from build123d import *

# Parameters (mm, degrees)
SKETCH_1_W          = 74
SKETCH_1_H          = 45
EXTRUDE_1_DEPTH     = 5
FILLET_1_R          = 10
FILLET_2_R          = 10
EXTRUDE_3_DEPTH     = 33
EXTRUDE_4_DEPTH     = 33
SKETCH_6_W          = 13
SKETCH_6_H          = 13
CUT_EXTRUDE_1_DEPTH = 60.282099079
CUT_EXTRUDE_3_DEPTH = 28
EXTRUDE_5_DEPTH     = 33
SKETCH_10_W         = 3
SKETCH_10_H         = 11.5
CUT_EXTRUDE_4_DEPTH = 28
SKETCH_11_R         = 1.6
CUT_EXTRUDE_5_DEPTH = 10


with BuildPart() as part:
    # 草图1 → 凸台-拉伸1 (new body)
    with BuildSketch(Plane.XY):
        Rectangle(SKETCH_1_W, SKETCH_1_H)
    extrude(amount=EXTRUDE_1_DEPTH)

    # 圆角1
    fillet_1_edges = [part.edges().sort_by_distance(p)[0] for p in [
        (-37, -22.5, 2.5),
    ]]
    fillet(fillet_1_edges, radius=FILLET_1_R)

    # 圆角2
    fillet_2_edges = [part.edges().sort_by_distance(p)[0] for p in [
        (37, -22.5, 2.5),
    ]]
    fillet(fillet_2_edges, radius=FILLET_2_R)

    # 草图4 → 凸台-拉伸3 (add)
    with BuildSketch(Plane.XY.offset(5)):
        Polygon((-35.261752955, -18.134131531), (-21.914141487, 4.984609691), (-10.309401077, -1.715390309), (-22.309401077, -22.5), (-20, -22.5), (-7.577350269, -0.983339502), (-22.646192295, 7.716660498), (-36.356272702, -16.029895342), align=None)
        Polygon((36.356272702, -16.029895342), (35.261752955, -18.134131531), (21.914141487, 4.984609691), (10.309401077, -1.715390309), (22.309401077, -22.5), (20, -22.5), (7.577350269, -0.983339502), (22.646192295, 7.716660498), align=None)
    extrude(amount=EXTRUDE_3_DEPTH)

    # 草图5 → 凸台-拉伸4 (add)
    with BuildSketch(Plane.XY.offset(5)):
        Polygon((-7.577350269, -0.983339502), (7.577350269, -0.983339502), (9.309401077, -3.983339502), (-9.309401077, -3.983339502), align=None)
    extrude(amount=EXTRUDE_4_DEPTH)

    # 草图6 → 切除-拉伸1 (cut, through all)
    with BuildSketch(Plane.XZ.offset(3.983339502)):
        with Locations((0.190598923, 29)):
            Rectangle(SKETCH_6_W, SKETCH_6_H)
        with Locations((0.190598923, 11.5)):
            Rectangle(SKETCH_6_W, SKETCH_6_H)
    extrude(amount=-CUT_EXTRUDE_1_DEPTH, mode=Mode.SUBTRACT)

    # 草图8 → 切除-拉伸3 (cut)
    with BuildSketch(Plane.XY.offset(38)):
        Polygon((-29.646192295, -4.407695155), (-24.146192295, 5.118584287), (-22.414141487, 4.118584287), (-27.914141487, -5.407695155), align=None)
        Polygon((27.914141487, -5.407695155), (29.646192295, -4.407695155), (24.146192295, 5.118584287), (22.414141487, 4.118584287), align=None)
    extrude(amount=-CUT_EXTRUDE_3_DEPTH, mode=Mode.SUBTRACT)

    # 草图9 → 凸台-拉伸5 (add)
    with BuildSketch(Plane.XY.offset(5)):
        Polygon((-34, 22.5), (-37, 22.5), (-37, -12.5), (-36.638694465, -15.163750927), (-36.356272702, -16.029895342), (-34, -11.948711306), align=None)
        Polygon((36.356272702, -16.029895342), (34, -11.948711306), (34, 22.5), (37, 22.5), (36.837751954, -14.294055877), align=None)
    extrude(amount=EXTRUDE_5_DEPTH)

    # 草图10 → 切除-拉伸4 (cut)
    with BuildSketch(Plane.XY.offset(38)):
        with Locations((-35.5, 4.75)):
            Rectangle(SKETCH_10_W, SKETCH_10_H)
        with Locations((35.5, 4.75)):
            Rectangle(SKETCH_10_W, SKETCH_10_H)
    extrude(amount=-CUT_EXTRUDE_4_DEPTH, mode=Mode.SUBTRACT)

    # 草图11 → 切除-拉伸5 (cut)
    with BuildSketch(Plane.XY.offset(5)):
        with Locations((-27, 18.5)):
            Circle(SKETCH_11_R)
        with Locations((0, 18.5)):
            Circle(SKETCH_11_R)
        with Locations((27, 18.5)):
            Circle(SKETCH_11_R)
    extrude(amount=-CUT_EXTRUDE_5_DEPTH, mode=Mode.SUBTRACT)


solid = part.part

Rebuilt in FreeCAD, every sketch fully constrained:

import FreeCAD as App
import Part
import Sketcher
Q = App.Units.Quantity


def edges_at(feature, points):
    """Names of the edges that pass closest to the given points."""
    edges = feature.Shape.Edges
    near = lambda p: min(range(len(edges)), key=lambda i: edges[i].distToShape(Part.Vertex(*p))[0])
    return sorted({f"Edge{near(p) + 1}" for p in points})

doc = App.newDocument("Part")
body = doc.addObject("PartDesign::Body", "Body")

# Sketch on XY plane
sketch1 = doc.addObject("Sketcher::SketchObject", "Sketch")
body.addObject(sketch1)
sketch1.AttachmentSupport = (doc.XY_Plane, [""])
sketch1.MapMode = "FlatFace"
sketch1.addGeometry(Part.LineSegment(App.Vector(-37, 22, 0), App.Vector(-37, -22, 0)), False)
sketch1.addGeometry(Part.LineSegment(App.Vector(-37, -22, 0), App.Vector(37, -22, 0)), False)
sketch1.addGeometry(Part.LineSegment(App.Vector(37, -22, 0), App.Vector(37, 22, 0)), False)
sketch1.addGeometry(Part.LineSegment(App.Vector(37, 22, 0), App.Vector(-37, 22, 0)), False)
sketch1.addConstraint(Sketcher.Constraint("Coincident", 0, 2, 1, 1))
sketch1.addConstraint(Sketcher.Constraint("Coincident", 1, 2, 2, 1))
sketch1.addConstraint(Sketcher.Constraint("Coincident", 2, 2, 3, 1))
sketch1.addConstraint(Sketcher.Constraint("Coincident", 3, 2, 0, 1))
sketch1.addConstraint(Sketcher.Constraint("Vertical", 0))
sketch1.addConstraint(Sketcher.Constraint("Horizontal", 1))
sketch1.addConstraint(Sketcher.Constraint("Vertical", 2))
sketch1.addConstraint(Sketcher.Constraint("Horizontal", 3))
sketch1.addConstraint(Sketcher.Constraint("Symmetric", 0, 2, 2, 2, -1, 1))
sketch1.addConstraint(Sketcher.Constraint("DistanceX", 1, 1, 1, 2, Q("74 mm")))
sketch1.addConstraint(Sketcher.Constraint("DistanceY", 0, 2, 0, 1, Q("45 mm")))
pad1 = doc.addObject("PartDesign::Pad", "Pad")
body.addObject(pad1)
pad1.Profile = sketch1
pad1.Length = 5
doc.recompute()

fillet = doc.addObject("PartDesign::Fillet", "Fillet")
body.addObject(fillet)
fillet.Base = (pad1, edges_at(pad1, [(-37, -22.5, 2.5)]))
fillet.Radius = 10
doc.recompute()

fillet2 = doc.addObject("PartDesign::Fillet", "Fillet001")
body.addObject(fillet2)
fillet2.Base = (fillet, edges_at(fillet, [(37, -22.5, 2.5)]))
fillet2.Radius = 10

# Sketch on XY plane
sketch2 = doc.addObject("Sketcher::SketchObject", "Sketch001")
body.addObject(sketch2)
sketch2.AttachmentSupport = (doc.XY_Plane, [""])
sketch2.MapMode = "FlatFace"
sketch2.AttachmentOffset = App.Placement(App.Vector(0, 0, 5), App.Rotation())
sketch2.addGeometry(Part.LineSegment(App.Vector(-35.3, -18.1, 0), App.Vector(-21.9, 5, 0)), False)
sketch2.addGeometry(Part.LineSegment(App.Vector(-21.9, 5, 0), App.Vector(-10.3, -1.7, 0)), False)
sketch2.addGeometry(Part.LineSegment(App.Vector(-10.3, -1.7, 0), App.Vector(-22.3, -22.5, 0)), False)
sketch2.addGeometry(Part.LineSegment(App.Vector(-22.3, -22.5, 0), App.Vector(-20, -22.5, 0)), False)
sketch2.addGeometry(Part.LineSegment(App.Vector(-20, -22.5, 0), App.Vector(-7.6, -1, 0)), False)
sketch2.addGeometry(Part.LineSegment(App.Vector(-7.6, -1, 0), App.Vector(-22.6, 7.7, 0)), False)
sketch2.addGeometry(Part.LineSegment(App.Vector(-22.6, 7.7, 0), App.Vector(-36.4, -16, 0)), False)
sketch2.addGeometry(Part.LineSegment(App.Vector(-36.4, -16, 0), App.Vector(-35.3, -18.1, 0)), False)
sketch2.addGeometry(Part.LineSegment(App.Vector(35.3, -18.1, 0), App.Vector(36.4, -16, 0)), False)
sketch2.addGeometry(Part.LineSegment(App.Vector(36.4, -16, 0), App.Vector(22.6, 7.7, 0)), False)
sketch2.addGeometry(Part.LineSegment(App.Vector(22.6, 7.7, 0), App.Vector(7.6, -1, 0)), False)
sketch2.addGeometry(Part.LineSegment(App.Vector(7.6, -1, 0), App.Vector(20, -22.5, 0)), False)
sketch2.addGeometry(Part.LineSegment(App.Vector(20, -22.5, 0), App.Vector(22.3, -22.5, 0)), False)
sketch2.addGeometry(Part.LineSegment(App.Vector(22.3, -22.5, 0), App.Vector(10.3, -1.7, 0)), False)
sketch2.addGeometry(Part.LineSegment(App.Vector(10.3, -1.7, 0), App.Vector(21.9, 5, 0)), False)
sketch2.addGeometry(Part.LineSegment(App.Vector(21.9, 5, 0), App.Vector(35.3, -18.1, 0)), False)
sketch2.addConstraint(Sketcher.Constraint("Coincident", 0, 2, 1, 1))
sketch2.addConstraint(Sketcher.Constraint("Coincident", 1, 2, 2, 1))
sketch2.addConstraint(Sketcher.Constraint("Coincident", 2, 2, 3, 1))
sketch2.addConstraint(Sketcher.Constraint("Coincident", 3, 2, 4, 1))
sketch2.addConstraint(Sketcher.Constraint("Coincident", 4, 2, 5, 1))
sketch2.addConstraint(Sketcher.Constraint("Coincident", 5, 2, 6, 1))
sketch2.addConstraint(Sketcher.Constraint("Coincident", 6, 2, 7, 1))
sketch2.addConstraint(Sketcher.Constraint("Coincident", 7, 2, 0, 1))
sketch2.addConstraint(Sketcher.Constraint("Coincident", 8, 2, 9, 1))
sketch2.addConstraint(Sketcher.Constraint("Coincident", 9, 2, 10, 1))
sketch2.addConstraint(Sketcher.Constraint("Coincident", 10, 2, 11, 1))
sketch2.addConstraint(Sketcher.Constraint("Coincident", 11, 2, 12, 1))
sketch2.addConstraint(Sketcher.Constraint("Coincident", 12, 2, 13, 1))
sketch2.addConstraint(Sketcher.Constraint("Coincident", 13, 2, 14, 1))
sketch2.addConstraint(Sketcher.Constraint("Coincident", 14, 2, 15, 1))
sketch2.addConstraint(Sketcher.Constraint("Coincident", 15, 2, 8, 1))
sketch2.addConstraint(Sketcher.Constraint("Horizontal", 3))
sketch2.addConstraint(Sketcher.Constraint("Horizontal", 12))
sketch2.addConstraint(Sketcher.Constraint("Symmetric", 6, 2, 8, 2, -2))
sketch2.addConstraint(Sketcher.Constraint("Symmetric", 5, 2, 9, 2, -2))
sketch2.addConstraint(Sketcher.Constraint("Symmetric", 4, 2, 10, 2, -2))
sketch2.addConstraint(Sketcher.Constraint("Symmetric", 3, 2, 11, 2, -2))
sketch2.addConstraint(Sketcher.Constraint("Symmetric", 1, 2, 13, 2, -2))
sketch2.addConstraint(Sketcher.Constraint("Symmetric", 0, 2, 14, 2, -2))
sketch2.addConstraint(Sketcher.Constraint("Symmetric", 7, 2, 15, 2, -2))
sketch2.addConstraint(Sketcher.Constraint("Perpendicular", 0, 1))
sketch2.addConstraint(Sketcher.Constraint("Perpendicular", 1, 2))
sketch2.addConstraint(Sketcher.Constraint("Parallel", 2, 4))
sketch2.addConstraint(Sketcher.Constraint("Perpendicular", 4, 5))
sketch2.addConstraint(Sketcher.Constraint("Perpendicular", 5, 6))
sketch2.addConstraint(Sketcher.Constraint("Parallel", 11, 13))
sketch2.addConstraint(Sketcher.Constraint("Angle", 0, Q("60 deg")))
sketch2.addConstraint(Sketcher.Constraint("Distance", 2, Q("24 mm")))
sketch2.addConstraint(Sketcher.Constraint("DistanceX", 3, 2, -1, 1, Q("20 mm")))
sketch2.addConstraint(Sketcher.Constraint("Distance", 1, Q("13.4 mm")))
sketch2.addConstraint(Sketcher.Constraint("Distance", 5, Q("17.4 mm")))
sketch2.addConstraint(Sketcher.Constraint("DistanceY", 2, 2, -1, 1, Q("22.5 mm")))
sketch2.addConstraint(Sketcher.Constraint("DistanceX", 3, 1, 3, 2, Q("2.309401 mm")))
sketch2.addConstraint(Sketcher.Constraint("Distance", 4, Q("24.845299 mm")))
sketch2.addConstraint(Sketcher.Constraint("Distance", 6, Q("27.420161 mm")))
sketch2.addConstraint(Sketcher.Constraint("DistanceY", 7, 2, -1, 1, Q("18.134132 mm")))
pad2 = doc.addObject("PartDesign::Pad", "Pad001")
body.addObject(pad2)
pad2.Profile = sketch2
pad2.Length = 33

# Sketch on XY plane
sketch3 = doc.addObject("Sketcher::SketchObject", "Sketch002")
body.addObject(sketch3)
sketch3.AttachmentSupport = (doc.XY_Plane, [""])
sketch3.MapMode = "FlatFace"
sketch3.AttachmentOffset = App.Placement(App.Vector(0, 0, 5), App.Rotation())
sketch3.addGeometry(Part.LineSegment(App.Vector(7.6, -1, 0), App.Vector(-7.6, -1, 0)), False)
sketch3.addGeometry(Part.LineSegment(App.Vector(-7.6, -1, 0), App.Vector(-9.3, -4, 0)), False)
sketch3.addGeometry(Part.LineSegment(App.Vector(-9.3, -4, 0), App.Vector(9.3, -4, 0)), False)
sketch3.addGeometry(Part.LineSegment(App.Vector(9.3, -4, 0), App.Vector(7.6, -1, 0)), False)
sketch3.addConstraint(Sketcher.Constraint("Coincident", 0, 2, 1, 1))
sketch3.addConstraint(Sketcher.Constraint("Coincident", 1, 2, 2, 1))
sketch3.addConstraint(Sketcher.Constraint("Coincident", 2, 2, 3, 1))
sketch3.addConstraint(Sketcher.Constraint("Coincident", 3, 2, 0, 1))
sketch3.addConstraint(Sketcher.Constraint("Horizontal", 0))
sketch3.addConstraint(Sketcher.Constraint("Horizontal", 2))
sketch3.addConstraint(Sketcher.Constraint("Equal", 1, 3))
sketch3.addConstraint(Sketcher.Constraint("Angle", 1, Q("-120 deg")))
sketch3.addConstraint(Sketcher.Constraint("DistanceY", 1, 2, 0, 2, Q("3 mm")))
sketch3.addConstraint(Sketcher.Constraint("DistanceX", 0, 2, 0, 1, Q("15.154701 mm")))
sketch3.addConstraint(Sketcher.Constraint("DistanceX", 1, 2, -1, 1, Q("9.309401 mm")))
sketch3.addConstraint(Sketcher.Constraint("DistanceY", 0, 2, -1, 1, Q("0.98334 mm")))
pad3 = doc.addObject("PartDesign::Pad", "Pad002")
body.addObject(pad3)
pad3.Profile = sketch3
pad3.Length = 33

# Sketch on XZ plane
sketch4 = doc.addObject("Sketcher::SketchObject", "Sketch003")
body.addObject(sketch4)
sketch4.AttachmentSupport = (doc.XZ_Plane, [""])
sketch4.MapMode = "FlatFace"
sketch4.AttachmentOffset = App.Placement(App.Vector(0, 0, 3.98334), App.Rotation())
sketch4.addGeometry(Part.LineSegment(App.Vector(-6, 36, 0), App.Vector(-6, 22, 0)), False)
sketch4.addGeometry(Part.LineSegment(App.Vector(-6, 22, 0), App.Vector(7, 22, 0)), False)
sketch4.addGeometry(Part.LineSegment(App.Vector(7, 22, 0), App.Vector(7, 36, 0)), False)
sketch4.addGeometry(Part.LineSegment(App.Vector(7, 36, 0), App.Vector(-6, 36, 0)), False)
sketch4.addGeometry(Part.LineSegment(App.Vector(-6, 18, 0), App.Vector(-6, 5, 0)), False)
sketch4.addGeometry(Part.LineSegment(App.Vector(-6, 5, 0), App.Vector(7, 5, 0)), False)
sketch4.addGeometry(Part.LineSegment(App.Vector(7, 5, 0), App.Vector(7, 18, 0)), False)
sketch4.addGeometry(Part.LineSegment(App.Vector(7, 18, 0), App.Vector(-6, 18, 0)), False)
sketch4.addConstraint(Sketcher.Constraint("Coincident", 0, 2, 1, 1))
sketch4.addConstraint(Sketcher.Constraint("Coincident", 1, 2, 2, 1))
sketch4.addConstraint(Sketcher.Constraint("Coincident", 2, 2, 3, 1))
sketch4.addConstraint(Sketcher.Constraint("Coincident", 3, 2, 0, 1))
sketch4.addConstraint(Sketcher.Constraint("Coincident", 4, 2, 5, 1))
sketch4.addConstraint(Sketcher.Constraint("Coincident", 5, 2, 6, 1))
sketch4.addConstraint(Sketcher.Constraint("Coincident", 6, 2, 7, 1))
sketch4.addConstraint(Sketcher.Constraint("Coincident", 7, 2, 4, 1))
sketch4.addConstraint(Sketcher.Constraint("Vertical", 0))
sketch4.addConstraint(Sketcher.Constraint("Horizontal", 1))
sketch4.addConstraint(Sketcher.Constraint("Vertical", 2))
sketch4.addConstraint(Sketcher.Constraint("Horizontal", 3))
sketch4.addConstraint(Sketcher.Constraint("Vertical", 4))
sketch4.addConstraint(Sketcher.Constraint("Horizontal", 5))
sketch4.addConstraint(Sketcher.Constraint("Vertical", 6))
sketch4.addConstraint(Sketcher.Constraint("Horizontal", 7))
sketch4.addConstraint(Sketcher.Constraint("Vertical", 3, 2, 4, 2))
sketch4.addConstraint(Sketcher.Constraint("Vertical", 2, 2, 5, 2))
sketch4.addConstraint(Sketcher.Constraint("Equal", 7, 0))
sketch4.addConstraint(Sketcher.Constraint("Equal", 2, 4))
sketch4.addConstraint(Sketcher.Constraint("DistanceX", 1, 1, 1, 2, Q("13 mm")))
sketch4.addConstraint(Sketcher.Constraint("DistanceY", -1, 1, 4, 2, Q("5 mm")))
sketch4.addConstraint(Sketcher.Constraint("DistanceY", -1, 1, 0, 2, Q("22.5 mm")))
sketch4.addConstraint(Sketcher.Constraint("DistanceX", 0, 2, -1, 1, Q("6.309401 mm")))
pocket1 = doc.addObject("PartDesign::Pocket", "Pocket")
body.addObject(pocket1)
pocket1.Profile = sketch4
pocket1.Type = "ThroughAll"

# Sketch on XY plane
sketch5 = doc.addObject("Sketcher::SketchObject", "Sketch004")
body.addObject(sketch5)
sketch5.AttachmentSupport = (doc.XY_Plane, [""])
sketch5.MapMode = "FlatFace"
sketch5.AttachmentOffset = App.Placement(App.Vector(0, 0, 38), App.Rotation())
sketch5.addGeometry(Part.LineSegment(App.Vector(-24.1, 5.1, 0), App.Vector(-29.6, -4.4, 0)), False)
sketch5.addGeometry(Part.LineSegment(App.Vector(-29.6, -4.4, 0), App.Vector(-27.9, -5.4, 0)), False)
sketch5.addGeometry(Part.LineSegment(App.Vector(-27.9, -5.4, 0), App.Vector(-22.4, 4.1, 0)), False)
sketch5.addGeometry(Part.LineSegment(App.Vector(-22.4, 4.1, 0), App.Vector(-24.1, 5.1, 0)), False)
sketch5.addGeometry(Part.LineSegment(App.Vector(27.9, -5.4, 0), App.Vector(29.6, -4.4, 0)), False)
sketch5.addGeometry(Part.LineSegment(App.Vector(29.6, -4.4, 0), App.Vector(24.1, 5.1, 0)), False)
sketch5.addGeometry(Part.LineSegment(App.Vector(24.1, 5.1, 0), App.Vector(22.4, 4.1, 0)), False)
sketch5.addGeometry(Part.LineSegment(App.Vector(22.4, 4.1, 0), App.Vector(27.9, -5.4, 0)), False)
sketch5.addConstraint(Sketcher.Constraint("Coincident", 0, 2, 1, 1))
sketch5.addConstraint(Sketcher.Constraint("Coincident", 1, 2, 2, 1))
sketch5.addConstraint(Sketcher.Constraint("Coincident", 2, 2, 3, 1))
sketch5.addConstraint(Sketcher.Constraint("Coincident", 3, 2, 0, 1))
sketch5.addConstraint(Sketcher.Constraint("Coincident", 4, 2, 5, 1))
sketch5.addConstraint(Sketcher.Constraint("Coincident", 5, 2, 6, 1))
sketch5.addConstraint(Sketcher.Constraint("Coincident", 6, 2, 7, 1))
sketch5.addConstraint(Sketcher.Constraint("Coincident", 7, 2, 4, 1))
sketch5.addConstraint(Sketcher.Constraint("Symmetric", 0, 2, 4, 2, -2))
sketch5.addConstraint(Sketcher.Constraint("Symmetric", 3, 2, 5, 2, -2))
sketch5.addConstraint(Sketcher.Constraint("Symmetric", 2, 2, 6, 2, -2))
sketch5.addConstraint(Sketcher.Constraint("Symmetric", 1, 2, 7, 2, -2))
sketch5.addConstraint(Sketcher.Constraint("Perpendicular", 0, 1))
sketch5.addConstraint(Sketcher.Constraint("Perpendicular", 1, 2))
sketch5.addConstraint(Sketcher.Constraint("Perpendicular", 2, 3))
sketch5.addConstraint(Sketcher.Constraint("Angle", 0, Q("-120 deg")))
sketch5.addConstraint(Sketcher.Constraint("Distance", 0, Q("11 mm")))
sketch5.addConstraint(Sketcher.Constraint("Distance", 1, Q("2 mm")))
sketch5.addConstraint(Sketcher.Constraint("DistanceX", 1, 2, -1, 1, Q("27.914141 mm")))
sketch5.addConstraint(Sketcher.Constraint("DistanceY", 0, 2, -1, 1, Q("4.407695 mm")))
pocket2 = doc.addObject("PartDesign::Pocket", "Pocket001")
body.addObject(pocket2)
pocket2.Profile = sketch5
pocket2.Length = 28

# Sketch on XY plane
sketch6 = doc.addObject("Sketcher::SketchObject", "Sketch005")
body.addObject(sketch6)
sketch6.AttachmentSupport = (doc.XY_Plane, [""])
sketch6.MapMode = "FlatFace"
sketch6.AttachmentOffset = App.Placement(App.Vector(0, 0, 5), App.Rotation())
sketch6.addGeometry(Part.LineSegment(App.Vector(-34, 22.5, 0), App.Vector(-37, 22.5, 0)), False)
sketch6.addGeometry(Part.LineSegment(App.Vector(-37, 22.5, 0), App.Vector(-37, -12.5, 0)), False)
sketch6.addGeometry(Part.LineSegment(App.Vector(-37, -12.5, 0), App.Vector(-36.6, -15.2, 0)), False)
sketch6.addGeometry(Part.LineSegment(App.Vector(-36.6, -15.2, 0), App.Vector(-36.4, -16, 0)), False)
sketch6.addGeometry(Part.LineSegment(App.Vector(-36.4, -16, 0), App.Vector(-34, -11.9, 0)), False)
sketch6.addGeometry(Part.LineSegment(App.Vector(-34, -11.9, 0), App.Vector(-34, 22.5, 0)), False)
sketch6.addGeometry(Part.LineSegment(App.Vector(34, -11.9, 0), App.Vector(36.4, -16, 0)), False)
sketch6.addGeometry(Part.LineSegment(App.Vector(36.4, -16, 0), App.Vector(36.8, -14.3, 0)), False)
sketch6.addGeometry(Part.LineSegment(App.Vector(36.8, -14.3, 0), App.Vector(37, 22.5, 0)), False)
sketch6.addGeometry(Part.LineSegment(App.Vector(37, 22.5, 0), App.Vector(34, 22.5, 0)), False)
sketch6.addGeometry(Part.LineSegment(App.Vector(34, 22.5, 0), App.Vector(34, -11.9, 0)), False)
sketch6.addConstraint(Sketcher.Constraint("Coincident", 0, 2, 1, 1))
sketch6.addConstraint(Sketcher.Constraint("Coincident", 1, 2, 2, 1))
sketch6.addConstraint(Sketcher.Constraint("Coincident", 2, 2, 3, 1))
sketch6.addConstraint(Sketcher.Constraint("Coincident", 3, 2, 4, 1))
sketch6.addConstraint(Sketcher.Constraint("Coincident", 4, 2, 5, 1))
sketch6.addConstraint(Sketcher.Constraint("Coincident", 5, 2, 0, 1))
sketch6.addConstraint(Sketcher.Constraint("Coincident", 6, 2, 7, 1))
sketch6.addConstraint(Sketcher.Constraint("Coincident", 7, 2, 8, 1))
sketch6.addConstraint(Sketcher.Constraint("Coincident", 8, 2, 9, 1))
sketch6.addConstraint(Sketcher.Constraint("Coincident", 9, 2, 10, 1))
sketch6.addConstraint(Sketcher.Constraint("Coincident", 10, 2, 6, 1))
sketch6.addConstraint(Sketcher.Constraint("Horizontal", 0))
sketch6.addConstraint(Sketcher.Constraint("Vertical", 1))
sketch6.addConstraint(Sketcher.Constraint("Vertical", 5))
sketch6.addConstraint(Sketcher.Constraint("Horizontal", 9))
sketch6.addConstraint(Sketcher.Constraint("Vertical", 10))
sketch6.addConstraint(Sketcher.Constraint("Symmetric", 3, 2, 6, 2, -2))
sketch6.addConstraint(Sketcher.Constraint("Symmetric", 0, 2, 8, 2, -2))
sketch6.addConstraint(Sketcher.Constraint("Symmetric", 4, 2, 10, 2, -2))
sketch6.addConstraint(Sketcher.Constraint("DistanceX", 0, 2, 0, 1, Q("3 mm")))
sketch6.addConstraint(Sketcher.Constraint("DistanceY", 1, 2, 1, 1, Q("35 mm")))
sketch6.addConstraint(Sketcher.Constraint("Angle", 4, Q("60 deg")))
sketch6.addConstraint(Sketcher.Constraint("DistanceX", 0, 2, -1, 1, Q("37 mm")))
sketch6.addConstraint(Sketcher.Constraint("DistanceY", -1, 1, 0, 2, Q("22.5 mm")))
sketch6.addConstraint(Sketcher.Constraint("DistanceY", 5, 1, 5, 2, Q("34.448711 mm")))
sketch6.addConstraint(Sketcher.Constraint("DistanceY", 2, 2, -1, 1, Q("15.163751 mm")))
sketch6.addConstraint(Sketcher.Constraint("DistanceX", -1, 1, 7, 2, Q("36.837752 mm")))
sketch6.addConstraint(Sketcher.Constraint("DistanceX", 2, 2, 3, 2, Q("0.282422 mm")))
sketch6.addConstraint(Sketcher.Constraint("DistanceX", 6, 2, 7, 2, Q("0.481479 mm")))
sketch6.addConstraint(Sketcher.Constraint("DistanceY", 6, 2, 7, 2, Q("1.735839 mm")))
pad4 = doc.addObject("PartDesign::Pad", "Pad003")
body.addObject(pad4)
pad4.Profile = sketch6
pad4.Length = 33

# Sketch on XY plane
sketch7 = doc.addObject("Sketcher::SketchObject", "Sketch006")
body.addObject(sketch7)
sketch7.AttachmentSupport = (doc.XY_Plane, [""])
sketch7.MapMode = "FlatFace"
sketch7.AttachmentOffset = App.Placement(App.Vector(0, 0, 38), App.Rotation())
sketch7.addGeometry(Part.LineSegment(App.Vector(-37, 10.5, 0), App.Vector(-37, -1, 0)), False)
sketch7.addGeometry(Part.LineSegment(App.Vector(-37, -1, 0), App.Vector(-34, -1, 0)), False)
sketch7.addGeometry(Part.LineSegment(App.Vector(-34, -1, 0), App.Vector(-34, 10.5, 0)), False)
sketch7.addGeometry(Part.LineSegment(App.Vector(-34, 10.5, 0), App.Vector(-37, 10.5, 0)), False)
sketch7.addGeometry(Part.LineSegment(App.Vector(34, 10.5, 0), App.Vector(34, -1, 0)), False)
sketch7.addGeometry(Part.LineSegment(App.Vector(34, -1, 0), App.Vector(37, -1, 0)), False)
sketch7.addGeometry(Part.LineSegment(App.Vector(37, -1, 0), App.Vector(37, 10.5, 0)), False)
sketch7.addGeometry(Part.LineSegment(App.Vector(37, 10.5, 0), App.Vector(34, 10.5, 0)), False)
sketch7.addConstraint(Sketcher.Constraint("Coincident", 0, 2, 1, 1))
sketch7.addConstraint(Sketcher.Constraint("Coincident", 1, 2, 2, 1))
sketch7.addConstraint(Sketcher.Constraint("Coincident", 2, 2, 3, 1))
sketch7.addConstraint(Sketcher.Constraint("Coincident", 3, 2, 0, 1))
sketch7.addConstraint(Sketcher.Constraint("Coincident", 4, 2, 5, 1))
sketch7.addConstraint(Sketcher.Constraint("Coincident", 5, 2, 6, 1))
sketch7.addConstraint(Sketcher.Constraint("Coincident", 6, 2, 7, 1))
sketch7.addConstraint(Sketcher.Constraint("Coincident", 7, 2, 4, 1))
sketch7.addConstraint(Sketcher.Constraint("Vertical", 0))
sketch7.addConstraint(Sketcher.Constraint("Horizontal", 1))
sketch7.addConstraint(Sketcher.Constraint("Vertical", 2))
sketch7.addConstraint(Sketcher.Constraint("Horizontal", 3))
sketch7.addConstraint(Sketcher.Constraint("Vertical", 4))
sketch7.addConstraint(Sketcher.Constraint("Horizontal", 5))
sketch7.addConstraint(Sketcher.Constraint("Vertical", 6))
sketch7.addConstraint(Sketcher.Constraint("Horizontal", 7))
sketch7.addConstraint(Sketcher.Constraint("Symmetric", 1, 2, 4, 2, -2))
sketch7.addConstraint(Sketcher.Constraint("Symmetric", 3, 2, 6, 2, -2))
sketch7.addConstraint(Sketcher.Constraint("DistanceX", 1, 1, 1, 2, Q("3 mm")))
sketch7.addConstraint(Sketcher.Constraint("DistanceY", 0, 2, 0, 1, Q("11.5 mm")))
sketch7.addConstraint(Sketcher.Constraint("DistanceX", 0, 2, -1, 1, Q("37 mm")))
sketch7.addConstraint(Sketcher.Constraint("DistanceY", 0, 2, -1, 1, Q("1 mm")))
pocket3 = doc.addObject("PartDesign::Pocket", "Pocket002")
body.addObject(pocket3)
pocket3.Profile = sketch7
pocket3.Length = 28

# Sketch on XY plane
sketch8 = doc.addObject("Sketcher::SketchObject", "Sketch007")
body.addObject(sketch8)
sketch8.AttachmentSupport = (doc.XY_Plane, [""])
sketch8.MapMode = "FlatFace"
sketch8.AttachmentOffset = App.Placement(App.Vector(0, 0, 5), App.Rotation())
sketch8.addGeometry(Part.Circle(App.Vector(-27, 18.5, 0), App.Vector(0, 0, 1), 1.6), False)
sketch8.addGeometry(Part.Circle(App.Vector(0, 18.5, 0), App.Vector(0, 0, 1), 1.6), False)
sketch8.addGeometry(Part.Circle(App.Vector(27, 18.5, 0), App.Vector(0, 0, 1), 1.6), False)
sketch8.addConstraint(Sketcher.Constraint("Equal", 0, 1))
sketch8.addConstraint(Sketcher.Constraint("Equal", 1, 2))
sketch8.addConstraint(Sketcher.Constraint("Symmetric", 0, 3, 2, 3, -2))
sketch8.addConstraint(Sketcher.Constraint("PointOnObject", 1, 3, -2))
sketch8.addConstraint(Sketcher.Constraint("Horizontal", 0, 3, 1, 3))
sketch8.addConstraint(Sketcher.Constraint("Diameter", 0, Q("3.2 mm")))
sketch8.addConstraint(Sketcher.Constraint("DistanceX", 0, 3, -1, 1, Q("27 mm")))
sketch8.addConstraint(Sketcher.Constraint("DistanceY", -1, 1, 0, 3, Q("18.5 mm")))
pocket4 = doc.addObject("PartDesign::Pocket", "Pocket003")
body.addObject(pocket4)
pocket4.Profile = sketch8
pocket4.Length = 10

doc.recompute()
